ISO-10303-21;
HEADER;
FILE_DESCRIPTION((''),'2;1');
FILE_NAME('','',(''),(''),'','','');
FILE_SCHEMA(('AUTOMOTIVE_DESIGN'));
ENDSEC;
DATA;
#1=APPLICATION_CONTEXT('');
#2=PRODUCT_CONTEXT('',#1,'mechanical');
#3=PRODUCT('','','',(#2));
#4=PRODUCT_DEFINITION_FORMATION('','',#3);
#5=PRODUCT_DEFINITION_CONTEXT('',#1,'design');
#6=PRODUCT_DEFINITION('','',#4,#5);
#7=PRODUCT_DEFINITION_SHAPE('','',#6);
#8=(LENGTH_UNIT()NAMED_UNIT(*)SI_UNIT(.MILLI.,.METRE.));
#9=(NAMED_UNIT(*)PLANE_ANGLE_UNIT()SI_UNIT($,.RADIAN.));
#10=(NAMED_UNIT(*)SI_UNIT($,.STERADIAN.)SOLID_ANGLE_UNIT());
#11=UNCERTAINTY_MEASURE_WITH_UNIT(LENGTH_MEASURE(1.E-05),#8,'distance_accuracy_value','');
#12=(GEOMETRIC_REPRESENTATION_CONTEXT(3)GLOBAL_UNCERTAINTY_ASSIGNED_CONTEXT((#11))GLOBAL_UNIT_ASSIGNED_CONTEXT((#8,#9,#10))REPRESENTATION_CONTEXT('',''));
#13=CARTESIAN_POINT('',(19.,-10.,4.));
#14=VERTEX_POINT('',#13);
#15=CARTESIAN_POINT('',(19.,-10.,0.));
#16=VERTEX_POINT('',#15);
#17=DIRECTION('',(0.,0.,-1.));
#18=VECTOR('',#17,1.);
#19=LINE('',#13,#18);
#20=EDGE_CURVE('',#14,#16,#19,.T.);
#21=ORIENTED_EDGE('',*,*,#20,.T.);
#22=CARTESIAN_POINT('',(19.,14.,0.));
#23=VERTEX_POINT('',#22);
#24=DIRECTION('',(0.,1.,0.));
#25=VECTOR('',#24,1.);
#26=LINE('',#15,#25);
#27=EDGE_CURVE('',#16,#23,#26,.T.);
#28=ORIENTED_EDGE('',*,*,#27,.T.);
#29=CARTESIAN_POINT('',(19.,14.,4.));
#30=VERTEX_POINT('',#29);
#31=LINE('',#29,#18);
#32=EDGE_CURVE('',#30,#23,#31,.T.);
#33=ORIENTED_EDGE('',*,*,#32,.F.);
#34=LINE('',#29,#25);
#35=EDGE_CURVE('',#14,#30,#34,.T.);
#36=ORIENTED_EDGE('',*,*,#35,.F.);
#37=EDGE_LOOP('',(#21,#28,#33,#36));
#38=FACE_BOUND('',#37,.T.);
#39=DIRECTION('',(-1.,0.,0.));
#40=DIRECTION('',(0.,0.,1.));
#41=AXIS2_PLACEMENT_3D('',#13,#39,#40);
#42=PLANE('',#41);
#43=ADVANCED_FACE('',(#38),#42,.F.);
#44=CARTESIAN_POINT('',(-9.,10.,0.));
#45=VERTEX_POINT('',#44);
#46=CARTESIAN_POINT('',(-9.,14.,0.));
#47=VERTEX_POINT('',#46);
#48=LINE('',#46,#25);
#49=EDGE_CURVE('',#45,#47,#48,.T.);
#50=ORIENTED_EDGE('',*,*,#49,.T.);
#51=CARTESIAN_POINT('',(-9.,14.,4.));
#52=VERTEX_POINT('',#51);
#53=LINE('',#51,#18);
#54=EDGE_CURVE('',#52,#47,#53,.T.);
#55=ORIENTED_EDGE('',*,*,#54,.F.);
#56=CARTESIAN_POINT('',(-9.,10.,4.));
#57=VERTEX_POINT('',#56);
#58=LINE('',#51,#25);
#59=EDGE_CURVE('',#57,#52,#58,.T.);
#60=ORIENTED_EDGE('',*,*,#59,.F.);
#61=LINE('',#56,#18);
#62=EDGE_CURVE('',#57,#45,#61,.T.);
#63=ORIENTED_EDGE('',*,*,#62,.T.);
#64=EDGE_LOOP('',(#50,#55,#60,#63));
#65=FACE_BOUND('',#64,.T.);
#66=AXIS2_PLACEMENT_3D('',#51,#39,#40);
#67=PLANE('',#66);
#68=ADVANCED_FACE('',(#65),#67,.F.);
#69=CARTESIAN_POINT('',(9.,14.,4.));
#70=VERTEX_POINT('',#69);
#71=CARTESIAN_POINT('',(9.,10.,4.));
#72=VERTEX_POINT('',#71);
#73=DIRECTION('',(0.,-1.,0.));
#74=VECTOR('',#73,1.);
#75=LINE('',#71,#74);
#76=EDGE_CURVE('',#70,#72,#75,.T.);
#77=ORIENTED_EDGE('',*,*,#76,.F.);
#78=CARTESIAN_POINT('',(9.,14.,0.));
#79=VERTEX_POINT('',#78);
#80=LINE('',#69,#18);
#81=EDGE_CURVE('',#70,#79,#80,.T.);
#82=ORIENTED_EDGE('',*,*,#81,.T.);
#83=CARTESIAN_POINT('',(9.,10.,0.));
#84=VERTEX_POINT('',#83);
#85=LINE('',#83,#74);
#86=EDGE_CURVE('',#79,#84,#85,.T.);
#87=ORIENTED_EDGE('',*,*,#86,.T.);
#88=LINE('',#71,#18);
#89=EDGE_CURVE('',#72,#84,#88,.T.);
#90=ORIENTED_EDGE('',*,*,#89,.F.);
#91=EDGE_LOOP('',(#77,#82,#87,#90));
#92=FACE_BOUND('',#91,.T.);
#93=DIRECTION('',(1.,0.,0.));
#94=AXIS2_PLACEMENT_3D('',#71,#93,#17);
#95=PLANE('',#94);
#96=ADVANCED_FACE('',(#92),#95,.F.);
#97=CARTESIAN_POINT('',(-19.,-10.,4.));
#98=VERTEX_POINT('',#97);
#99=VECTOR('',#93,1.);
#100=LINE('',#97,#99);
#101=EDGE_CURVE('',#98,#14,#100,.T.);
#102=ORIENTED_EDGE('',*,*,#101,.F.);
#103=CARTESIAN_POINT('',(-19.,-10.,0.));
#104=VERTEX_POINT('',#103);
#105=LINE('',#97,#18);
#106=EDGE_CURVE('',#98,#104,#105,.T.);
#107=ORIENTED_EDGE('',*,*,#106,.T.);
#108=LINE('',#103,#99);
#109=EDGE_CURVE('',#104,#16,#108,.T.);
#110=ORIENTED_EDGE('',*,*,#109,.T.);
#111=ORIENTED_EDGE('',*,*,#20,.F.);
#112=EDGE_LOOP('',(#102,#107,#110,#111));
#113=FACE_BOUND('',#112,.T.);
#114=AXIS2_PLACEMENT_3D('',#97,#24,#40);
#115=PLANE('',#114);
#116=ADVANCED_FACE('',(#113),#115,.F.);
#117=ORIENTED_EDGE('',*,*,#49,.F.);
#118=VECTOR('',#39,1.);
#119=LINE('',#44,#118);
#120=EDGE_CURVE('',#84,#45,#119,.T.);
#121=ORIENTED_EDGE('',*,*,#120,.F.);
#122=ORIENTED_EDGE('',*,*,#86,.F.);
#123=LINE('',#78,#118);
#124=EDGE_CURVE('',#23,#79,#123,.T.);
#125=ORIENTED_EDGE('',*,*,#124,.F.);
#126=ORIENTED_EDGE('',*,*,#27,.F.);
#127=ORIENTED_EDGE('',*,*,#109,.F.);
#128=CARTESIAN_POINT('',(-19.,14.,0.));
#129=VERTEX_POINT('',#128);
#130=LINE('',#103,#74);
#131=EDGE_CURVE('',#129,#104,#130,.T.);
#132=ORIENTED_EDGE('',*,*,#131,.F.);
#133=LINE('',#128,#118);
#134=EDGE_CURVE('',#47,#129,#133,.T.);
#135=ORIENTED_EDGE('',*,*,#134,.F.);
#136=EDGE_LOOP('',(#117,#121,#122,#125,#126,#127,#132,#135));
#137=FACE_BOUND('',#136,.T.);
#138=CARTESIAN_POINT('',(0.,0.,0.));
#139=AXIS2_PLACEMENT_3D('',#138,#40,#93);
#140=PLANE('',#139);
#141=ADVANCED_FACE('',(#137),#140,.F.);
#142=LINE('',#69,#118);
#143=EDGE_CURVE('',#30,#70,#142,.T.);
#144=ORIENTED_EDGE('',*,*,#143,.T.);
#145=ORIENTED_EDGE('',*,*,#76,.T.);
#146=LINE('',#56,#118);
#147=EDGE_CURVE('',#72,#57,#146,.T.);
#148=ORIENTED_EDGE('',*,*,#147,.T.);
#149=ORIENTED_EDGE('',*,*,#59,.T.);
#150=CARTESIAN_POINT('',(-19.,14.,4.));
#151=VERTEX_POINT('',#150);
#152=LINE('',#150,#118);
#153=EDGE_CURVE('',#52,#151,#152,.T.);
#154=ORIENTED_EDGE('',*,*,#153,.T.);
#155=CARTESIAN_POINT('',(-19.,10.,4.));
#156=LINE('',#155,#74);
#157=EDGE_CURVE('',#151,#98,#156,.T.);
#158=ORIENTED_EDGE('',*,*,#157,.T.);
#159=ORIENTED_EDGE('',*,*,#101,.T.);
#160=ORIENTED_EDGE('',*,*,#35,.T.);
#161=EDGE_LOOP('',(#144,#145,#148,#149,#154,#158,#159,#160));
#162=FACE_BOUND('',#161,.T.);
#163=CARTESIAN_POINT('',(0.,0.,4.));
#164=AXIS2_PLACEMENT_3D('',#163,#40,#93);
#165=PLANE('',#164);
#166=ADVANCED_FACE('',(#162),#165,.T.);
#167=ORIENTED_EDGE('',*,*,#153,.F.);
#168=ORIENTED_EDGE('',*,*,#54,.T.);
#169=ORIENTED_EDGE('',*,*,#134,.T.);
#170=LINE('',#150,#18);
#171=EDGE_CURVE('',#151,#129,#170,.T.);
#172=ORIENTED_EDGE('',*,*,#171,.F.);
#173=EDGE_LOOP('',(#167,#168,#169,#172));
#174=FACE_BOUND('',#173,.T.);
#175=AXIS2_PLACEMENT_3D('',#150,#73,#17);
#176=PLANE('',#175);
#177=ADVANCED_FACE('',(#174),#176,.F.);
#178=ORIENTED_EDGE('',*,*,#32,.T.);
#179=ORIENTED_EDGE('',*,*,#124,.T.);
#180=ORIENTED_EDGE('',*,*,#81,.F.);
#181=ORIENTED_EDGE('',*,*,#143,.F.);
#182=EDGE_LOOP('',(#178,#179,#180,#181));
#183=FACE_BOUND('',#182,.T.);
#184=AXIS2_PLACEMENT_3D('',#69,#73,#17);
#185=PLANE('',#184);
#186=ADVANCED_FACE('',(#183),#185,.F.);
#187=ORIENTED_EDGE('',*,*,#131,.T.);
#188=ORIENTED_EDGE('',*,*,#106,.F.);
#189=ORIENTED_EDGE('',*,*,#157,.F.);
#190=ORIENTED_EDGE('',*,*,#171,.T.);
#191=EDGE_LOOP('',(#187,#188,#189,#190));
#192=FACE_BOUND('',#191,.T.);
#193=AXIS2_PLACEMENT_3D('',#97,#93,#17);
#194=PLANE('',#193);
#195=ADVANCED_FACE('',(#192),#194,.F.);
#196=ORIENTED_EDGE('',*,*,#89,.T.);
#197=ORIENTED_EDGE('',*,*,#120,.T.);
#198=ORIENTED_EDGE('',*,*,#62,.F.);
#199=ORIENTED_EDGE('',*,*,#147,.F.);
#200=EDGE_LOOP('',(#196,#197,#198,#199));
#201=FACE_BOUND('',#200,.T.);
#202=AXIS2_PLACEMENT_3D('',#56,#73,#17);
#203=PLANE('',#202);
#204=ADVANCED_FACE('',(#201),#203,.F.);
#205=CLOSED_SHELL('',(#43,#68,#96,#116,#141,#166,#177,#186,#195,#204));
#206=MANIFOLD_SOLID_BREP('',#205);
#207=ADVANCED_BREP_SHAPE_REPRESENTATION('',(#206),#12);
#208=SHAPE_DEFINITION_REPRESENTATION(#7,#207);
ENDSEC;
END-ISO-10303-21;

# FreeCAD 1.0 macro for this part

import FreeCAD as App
import Part
import Sketcher
from FreeCAD import Vector
Q = App.Units.Quantity

doc = App.newDocument("Part")
params = doc.addObject("Spreadsheet::Sheet", "Params")
for row, (alias, value) in enumerate([
    ("sketch1_width", "38 mm"),
    ("sketch1_width2", "10 mm"),
    ("sketch1_height", "24 mm"),
    ("sketch1_height2", "4 mm"),
    ("pad1_length", "4 mm"),
], start=1):
    params.set(f"A{row}", alias)
    params.set(f"B{row}", "=" + value)
    params.setAlias(f"B{row}", alias)

body = doc.addObject("PartDesign::Body", "Body")

# Sketch on XY plane
sketch1 = doc.addObject("Sketcher::SketchObject", "Sketch")
body.addObject(sketch1)
sketch1.AttachmentSupport = (doc.XY_Plane, [""])
sketch1.MapMode = "FlatFace"
sketch1.addGeometry(Part.LineSegment(Vector(-19, 14, 0), Vector(-19, -10, 0)), False)
sketch1.addGeometry(Part.LineSegment(Vector(-19, -10, 0), Vector(19, -10, 0)), False)
sketch1.addGeometry(Part.LineSegment(Vector(19, -10, 0), Vector(19, 14, 0)), False)
sketch1.addGeometry(Part.LineSegment(Vector(19, 14, 0), Vector(9, 14, 0)), False)
sketch1.addGeometry(Part.LineSegment(Vector(9, 14, 0), Vector(9, 10, 0)), False)
sketch1.addGeometry(Part.LineSegment(Vector(9, 10, 0), Vector(-9, 10, 0)), False)
sketch1.addGeometry(Part.LineSegment(Vector(-9, 10, 0), Vector(-9, 14, 0)), False)
sketch1.addGeometry(Part.LineSegment(Vector(-9, 14, 0), Vector(-19, 14, 0)), False)
sketch1.addConstraint(Sketcher.Constraint("Coincident", 0, 2, 1, 1))
sketch1.addConstraint(Sketcher.Constraint("Coincident", 1, 2, 2, 1))
sketch1.addConstraint(Sketcher.Constraint("Coincident", 2, 2, 3, 1))
sketch1.addConstraint(Sketcher.Constraint("Coincident", 3, 2, 4, 1))
sketch1.addConstraint(Sketcher.Constraint("Coincident", 4, 2, 5, 1))
sketch1.addConstraint(Sketcher.Constraint("Coincident", 5, 2, 6, 1))
sketch1.addConstraint(Sketcher.Constraint("Coincident", 6, 2, 7, 1))
sketch1.addConstraint(Sketcher.Constraint("Coincident", 7, 2, 0, 1))
sketch1.addConstraint(Sketcher.Constraint("Vertical", 0))
sketch1.addConstraint(Sketcher.Constraint("Horizontal", 1))
sketch1.addConstraint(Sketcher.Constraint("Vertical", 2))
sketch1.addConstraint(Sketcher.Constraint("Horizontal", 3))
sketch1.addConstraint(Sketcher.Constraint("Vertical", 4))
sketch1.addConstraint(Sketcher.Constraint("Horizontal", 5))
sketch1.addConstraint(Sketcher.Constraint("Vertical", 6))
sketch1.addConstraint(Sketcher.Constraint("Horizontal", 7))
sketch1.addConstraint(Sketcher.Constraint("Symmetric", 3, 2, 6, 2, -2))
sketch1.addConstraint(Sketcher.Constraint("Equal", 3, 7))
sketch1.addConstraint(Sketcher.Constraint("DistanceX", 1, 1, 1, 2, Q("38 mm")))
sketch1.addConstraint(Sketcher.Constraint("DistanceX", 3, 2, 3, 1, Q("10 mm")))
sketch1.addConstraint(Sketcher.Constraint("DistanceY", 0, 2, 0, 1, Q("24 mm")))
sketch1.addConstraint(Sketcher.Constraint("DistanceY", 4, 2, 4, 1, Q("4 mm")))
sketch1.addConstraint(Sketcher.Constraint("DistanceY", 0, 2, -1, 1, Q("10 mm")))
sketch1.setExpression("Constraints[18]", "Params.sketch1_width")
sketch1.setExpression("Constraints[19]", "Params.sketch1_width2")
sketch1.setExpression("Constraints[20]", "Params.sketch1_height")
sketch1.setExpression("Constraints[21]", "Params.sketch1_height2")
pad1 = doc.addObject("PartDesign::Pad", "Pad")
body.addObject(pad1)
pad1.Profile = sketch1
pad1.setExpression("Length", "Params.pad1_length")

doc.recompute()
